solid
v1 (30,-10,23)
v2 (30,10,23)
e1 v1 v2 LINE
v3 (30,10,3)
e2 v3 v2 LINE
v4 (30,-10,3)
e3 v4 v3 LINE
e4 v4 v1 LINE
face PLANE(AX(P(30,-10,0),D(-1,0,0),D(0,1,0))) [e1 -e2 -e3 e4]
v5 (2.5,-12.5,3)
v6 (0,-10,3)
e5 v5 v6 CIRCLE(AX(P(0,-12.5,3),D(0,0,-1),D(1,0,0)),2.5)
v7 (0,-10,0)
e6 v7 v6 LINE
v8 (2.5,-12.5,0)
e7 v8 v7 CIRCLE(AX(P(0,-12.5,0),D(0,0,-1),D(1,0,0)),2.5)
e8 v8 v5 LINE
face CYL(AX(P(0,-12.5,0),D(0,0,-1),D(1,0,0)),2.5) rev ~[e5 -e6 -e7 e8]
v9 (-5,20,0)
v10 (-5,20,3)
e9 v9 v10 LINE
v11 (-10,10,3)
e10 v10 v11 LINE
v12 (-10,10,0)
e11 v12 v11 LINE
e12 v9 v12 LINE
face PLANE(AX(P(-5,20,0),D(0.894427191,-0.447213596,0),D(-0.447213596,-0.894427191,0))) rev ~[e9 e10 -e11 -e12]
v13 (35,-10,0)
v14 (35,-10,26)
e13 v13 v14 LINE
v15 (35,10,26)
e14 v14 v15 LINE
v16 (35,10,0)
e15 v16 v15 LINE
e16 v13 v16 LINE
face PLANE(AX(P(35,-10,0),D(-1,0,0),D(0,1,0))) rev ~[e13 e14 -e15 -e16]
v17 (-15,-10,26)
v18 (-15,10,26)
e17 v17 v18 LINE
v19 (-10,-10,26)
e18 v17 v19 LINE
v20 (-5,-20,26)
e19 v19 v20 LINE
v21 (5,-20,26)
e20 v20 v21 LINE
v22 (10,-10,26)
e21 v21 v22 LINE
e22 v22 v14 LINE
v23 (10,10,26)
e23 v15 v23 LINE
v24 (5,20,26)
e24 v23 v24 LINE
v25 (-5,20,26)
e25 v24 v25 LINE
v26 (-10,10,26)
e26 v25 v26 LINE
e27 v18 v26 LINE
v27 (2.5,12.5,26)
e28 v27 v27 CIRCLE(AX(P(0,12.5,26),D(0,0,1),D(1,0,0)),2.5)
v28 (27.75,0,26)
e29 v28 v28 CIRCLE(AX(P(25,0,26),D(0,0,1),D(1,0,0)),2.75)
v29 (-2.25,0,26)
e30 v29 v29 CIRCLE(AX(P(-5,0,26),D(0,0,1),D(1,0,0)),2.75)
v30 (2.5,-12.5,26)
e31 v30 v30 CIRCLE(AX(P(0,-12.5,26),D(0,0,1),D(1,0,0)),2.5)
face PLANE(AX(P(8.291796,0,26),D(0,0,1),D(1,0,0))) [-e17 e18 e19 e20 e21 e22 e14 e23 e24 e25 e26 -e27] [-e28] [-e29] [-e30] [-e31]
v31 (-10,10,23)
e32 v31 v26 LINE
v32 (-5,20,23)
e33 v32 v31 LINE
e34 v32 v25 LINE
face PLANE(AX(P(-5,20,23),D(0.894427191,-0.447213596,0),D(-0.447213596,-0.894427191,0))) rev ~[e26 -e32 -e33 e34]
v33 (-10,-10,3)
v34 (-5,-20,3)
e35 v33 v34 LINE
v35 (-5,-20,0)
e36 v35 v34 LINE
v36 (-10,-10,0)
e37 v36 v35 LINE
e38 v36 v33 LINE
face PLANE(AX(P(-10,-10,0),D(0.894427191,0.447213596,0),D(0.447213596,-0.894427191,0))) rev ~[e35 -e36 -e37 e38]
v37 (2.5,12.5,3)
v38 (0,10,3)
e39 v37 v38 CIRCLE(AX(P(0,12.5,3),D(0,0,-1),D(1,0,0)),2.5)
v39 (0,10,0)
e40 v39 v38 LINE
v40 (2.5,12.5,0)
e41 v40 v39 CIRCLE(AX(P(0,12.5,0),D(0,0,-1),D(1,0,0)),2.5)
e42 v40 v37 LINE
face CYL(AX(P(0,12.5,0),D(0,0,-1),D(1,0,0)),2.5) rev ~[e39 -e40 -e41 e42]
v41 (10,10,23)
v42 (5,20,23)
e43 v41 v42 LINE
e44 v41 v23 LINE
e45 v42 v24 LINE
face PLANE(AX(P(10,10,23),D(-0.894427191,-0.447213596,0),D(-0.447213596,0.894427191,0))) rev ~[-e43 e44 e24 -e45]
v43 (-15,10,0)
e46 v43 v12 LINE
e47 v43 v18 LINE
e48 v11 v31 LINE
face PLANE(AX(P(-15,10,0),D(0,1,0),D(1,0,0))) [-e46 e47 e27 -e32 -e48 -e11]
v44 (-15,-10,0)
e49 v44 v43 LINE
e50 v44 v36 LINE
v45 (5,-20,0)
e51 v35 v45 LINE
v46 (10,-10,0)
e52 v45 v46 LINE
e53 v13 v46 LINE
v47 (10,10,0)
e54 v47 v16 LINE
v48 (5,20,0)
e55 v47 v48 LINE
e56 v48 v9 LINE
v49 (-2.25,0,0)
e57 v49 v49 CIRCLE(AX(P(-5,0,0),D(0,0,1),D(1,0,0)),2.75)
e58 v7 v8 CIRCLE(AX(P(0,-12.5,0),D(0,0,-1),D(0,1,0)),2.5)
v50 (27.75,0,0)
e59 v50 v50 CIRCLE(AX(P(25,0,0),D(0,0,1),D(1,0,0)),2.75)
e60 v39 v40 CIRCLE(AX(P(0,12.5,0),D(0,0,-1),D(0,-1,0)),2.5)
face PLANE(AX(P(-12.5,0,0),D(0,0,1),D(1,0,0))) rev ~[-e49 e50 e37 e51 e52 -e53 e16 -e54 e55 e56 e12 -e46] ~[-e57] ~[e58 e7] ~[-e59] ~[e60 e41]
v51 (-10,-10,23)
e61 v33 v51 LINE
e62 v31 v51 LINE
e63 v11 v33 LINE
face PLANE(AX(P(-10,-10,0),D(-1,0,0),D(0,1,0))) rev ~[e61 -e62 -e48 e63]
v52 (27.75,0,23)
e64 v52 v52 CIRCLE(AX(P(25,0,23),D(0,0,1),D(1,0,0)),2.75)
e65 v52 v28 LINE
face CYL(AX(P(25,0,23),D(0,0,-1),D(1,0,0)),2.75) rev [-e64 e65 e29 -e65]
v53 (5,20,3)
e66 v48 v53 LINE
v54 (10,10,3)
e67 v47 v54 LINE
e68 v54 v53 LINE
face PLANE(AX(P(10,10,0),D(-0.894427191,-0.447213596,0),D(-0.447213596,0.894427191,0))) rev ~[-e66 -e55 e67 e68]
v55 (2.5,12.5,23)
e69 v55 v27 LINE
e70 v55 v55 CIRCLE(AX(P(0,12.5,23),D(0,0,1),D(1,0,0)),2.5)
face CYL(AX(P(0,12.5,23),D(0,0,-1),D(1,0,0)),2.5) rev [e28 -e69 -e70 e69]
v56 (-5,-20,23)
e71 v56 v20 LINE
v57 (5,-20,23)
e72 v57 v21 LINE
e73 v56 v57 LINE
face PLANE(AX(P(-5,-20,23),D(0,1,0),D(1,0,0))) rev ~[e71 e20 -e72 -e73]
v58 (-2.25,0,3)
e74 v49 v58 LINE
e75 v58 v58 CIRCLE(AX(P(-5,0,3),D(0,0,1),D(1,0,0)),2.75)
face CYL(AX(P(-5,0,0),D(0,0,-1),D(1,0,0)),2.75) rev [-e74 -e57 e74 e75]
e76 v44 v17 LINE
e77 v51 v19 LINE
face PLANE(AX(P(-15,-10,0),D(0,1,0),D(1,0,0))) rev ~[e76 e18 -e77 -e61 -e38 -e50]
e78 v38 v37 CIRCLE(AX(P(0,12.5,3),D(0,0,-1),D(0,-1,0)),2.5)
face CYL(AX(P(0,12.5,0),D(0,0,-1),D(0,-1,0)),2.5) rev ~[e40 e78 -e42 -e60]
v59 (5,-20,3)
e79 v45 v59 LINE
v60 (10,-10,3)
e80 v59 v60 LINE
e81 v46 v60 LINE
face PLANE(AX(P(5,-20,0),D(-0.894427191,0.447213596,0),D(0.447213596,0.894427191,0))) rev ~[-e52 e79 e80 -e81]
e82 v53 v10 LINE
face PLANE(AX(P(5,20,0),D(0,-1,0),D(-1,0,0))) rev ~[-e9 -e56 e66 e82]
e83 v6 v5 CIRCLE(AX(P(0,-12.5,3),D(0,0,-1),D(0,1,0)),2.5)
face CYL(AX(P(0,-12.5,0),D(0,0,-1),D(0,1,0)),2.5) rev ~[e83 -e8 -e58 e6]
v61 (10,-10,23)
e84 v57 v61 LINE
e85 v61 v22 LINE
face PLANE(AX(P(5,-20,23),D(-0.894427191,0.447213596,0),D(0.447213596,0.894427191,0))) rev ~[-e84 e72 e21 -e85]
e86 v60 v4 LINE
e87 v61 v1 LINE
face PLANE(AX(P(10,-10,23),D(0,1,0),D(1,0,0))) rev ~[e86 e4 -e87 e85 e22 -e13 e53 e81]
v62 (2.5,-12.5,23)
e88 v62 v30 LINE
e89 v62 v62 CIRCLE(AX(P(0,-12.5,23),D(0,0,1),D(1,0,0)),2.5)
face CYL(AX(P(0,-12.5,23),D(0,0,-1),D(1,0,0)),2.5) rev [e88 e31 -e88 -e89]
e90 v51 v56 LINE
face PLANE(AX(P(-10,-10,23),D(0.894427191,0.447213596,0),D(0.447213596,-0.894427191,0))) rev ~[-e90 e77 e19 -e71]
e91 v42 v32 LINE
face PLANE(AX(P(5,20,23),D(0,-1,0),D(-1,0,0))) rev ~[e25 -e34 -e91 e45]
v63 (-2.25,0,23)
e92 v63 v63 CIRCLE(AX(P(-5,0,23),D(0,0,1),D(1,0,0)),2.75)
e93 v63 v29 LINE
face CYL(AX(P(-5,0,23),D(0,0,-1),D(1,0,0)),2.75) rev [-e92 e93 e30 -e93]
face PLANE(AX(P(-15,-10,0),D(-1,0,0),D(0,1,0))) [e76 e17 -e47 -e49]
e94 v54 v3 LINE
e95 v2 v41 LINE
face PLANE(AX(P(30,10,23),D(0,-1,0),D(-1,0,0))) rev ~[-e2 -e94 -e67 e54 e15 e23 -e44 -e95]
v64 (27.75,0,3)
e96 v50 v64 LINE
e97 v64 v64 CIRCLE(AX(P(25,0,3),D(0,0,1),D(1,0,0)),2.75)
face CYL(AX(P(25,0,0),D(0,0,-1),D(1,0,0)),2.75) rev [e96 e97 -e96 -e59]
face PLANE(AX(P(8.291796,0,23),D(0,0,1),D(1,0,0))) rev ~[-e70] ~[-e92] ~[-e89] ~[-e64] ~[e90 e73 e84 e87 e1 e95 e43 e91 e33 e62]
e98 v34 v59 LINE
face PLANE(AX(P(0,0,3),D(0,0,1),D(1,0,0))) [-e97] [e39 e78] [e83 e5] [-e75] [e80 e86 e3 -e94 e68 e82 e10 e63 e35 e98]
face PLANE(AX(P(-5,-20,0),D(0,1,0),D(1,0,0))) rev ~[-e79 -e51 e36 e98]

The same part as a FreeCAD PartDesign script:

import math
import FreeCAD as App
import Part
import Sketcher
Q = App.Units.Quantity


def add_polygon(sketch, points):
    """Adds a closed chain of lines whose ends are joined by coincident constraints."""
    first, n = sketch.GeometryCount, len(points)
    for a, b in zip(points, points[1:] + points[:1]):
        sketch.addGeometry(Part.LineSegment(App.Vector(*a, 0), App.Vector(*b, 0)), False)
    for i in range(n):
        sketch.addConstraint(Sketcher.Constraint("Coincident", first + i, 2, first + (i + 1) % n, 1))

doc = App.newDocument("Part")
body = doc.addObject("PartDesign::Body", "Body")

# Sketch on XY plane
sketch1 = body.newObject("Sketcher::SketchObject", "Sketch")
sketch1.AttachmentSupport = (doc.getObject("XY_Plane"), [""])
sketch1.MapMode = "FlatFace"
add_polygon(sketch1, [(-10, 10), (-10, -10), (-5, -20), (5, -20), (10, -10), (30, -10), (30, 10), (10, 10), (5, 20), (-5, 20)])  # lines 0-9
sketch1.addGeometry(Part.ArcOfCircle(Part.Circle(App.Vector(0, -12.5, 0), App.Vector(0, 0, 1), 2.5), math.radians(0), math.radians(90)), False)  # 10
sketch1.addGeometry(Part.ArcOfCircle(Part.Circle(App.Vector(0, -12.5, 0), App.Vector(0, 0, 1), 2.5), math.radians(90), math.radians(360)), False)  # 11
sketch1.addGeometry(Part.Circle(App.Vector(-5, 0, 0), App.Vector(0, 0, 1), 2.8), False)  # 12
sketch1.addGeometry(Part.ArcOfCircle(Part.Circle(App.Vector(0, 12.5, 0), App.Vector(0, 0, 1), 2.5), math.radians(0), math.radians(270)), False)  # 13
sketch1.addGeometry(Part.ArcOfCircle(Part.Circle(App.Vector(0, 12.5, 0), App.Vector(0, 0, 1), 2.5), math.radians(-90), math.radians(0)), False)  # 14
sketch1.addGeometry(Part.Circle(App.Vector(25, 0, 0), App.Vector(0, 0, 1), 2.8), False)  # 15
sketch1.addConstraint(Sketcher.Constraint("Tangent", 10, 1, 11, 2))
sketch1.addConstraint(Sketcher.Constraint("Coincident", 11, 1, 10, 2))
sketch1.addConstraint(Sketcher.Constraint("Tangent", 13, 1, 14, 2))
sketch1.addConstraint(Sketcher.Constraint("Coincident", 14, 1, 13, 2))
sketch1.addConstraint(Sketcher.Constraint("Vertical", 0))
sketch1.addConstraint(Sketcher.Constraint("Horizontal", 2))
sketch1.addConstraint(Sketcher.Constraint("Horizontal", 4))
sketch1.addConstraint(Sketcher.Constraint("Vertical", 5))
sketch1.addConstraint(Sketcher.Constraint("Horizontal", 6))
sketch1.addConstraint(Sketcher.Constraint("Horizontal", 8))
sketch1.addConstraint(Sketcher.Constraint("Equal", 11, 13))
sketch1.addConstraint(Sketcher.Constraint("Equal", 12, 15))
sketch1.addConstraint(Sketcher.Constraint("Symmetric", 10, 3, 13, 3, -1, 1))
sketch1.addConstraint(Sketcher.Constraint("Symmetric", 0, 2, 6, 2, -1, 1))
sketch1.addConstraint(Sketcher.Constraint("Symmetric", 1, 2, 7, 2, -1, 1))
sketch1.addConstraint(Sketcher.Constraint("Symmetric", 3, 2, 9, 2, -1, 1))
sketch1.addConstraint(Sketcher.Constraint("Symmetric", 10, 1, 13, 1, -1))
sketch1.addConstraint(Sketcher.Constraint("PointOnObject", 12, 3, -1))
sketch1.addConstraint(Sketcher.Constraint("PointOnObject", 15, 3, -1))
sketch1.addConstraint(Sketcher.Constraint("PointOnObject", 11, 1, -2))
sketch1.addConstraint(Sketcher.Constraint("PointOnObject", 14, 1, -2))
sketch1.addConstraint(Sketcher.Constraint("Parallel", 3, 9))
sketch1.addConstraint(Sketcher.Constraint("Horizontal", 0, 2, 3, 2))
sketch1.addConstraint(Sketcher.Constraint("Horizontal", 11, 3, 10, 1))
sketch1.addConstraint(Sketcher.Constraint("Horizontal", 4, 2, 11, 1))
sketch1.addConstraint(Sketcher.Constraint("Vertical", 12, 3, 1, 2))
sketch1.addConstraint(Sketcher.Constraint("Vertical", 2, 2, 7, 2))
sketch1.addConstraint(Sketcher.Constraint("Equal", 6, 0))
sketch1.addConstraint(Sketcher.Constraint("Diameter", 12, Q("5.5 mm")))
sketch1.addConstraint(Sketcher.Constraint("Radius", 10, Q("2.5 mm")))
sketch1.addConstraint(Sketcher.Constraint("DistanceX", 2, 1, 2, 2, Q("10 mm")))
sketch1.addConstraint(Sketcher.Constraint("DistanceX", 4, 1, 4, 2, Q("20 mm")))
sketch1.addConstraint(Sketcher.Constraint("DistanceX", -1, 1, 15, 3, Q("25 mm")))
sketch1.addConstraint(Sketcher.Constraint("DistanceX", 0, 2, -1, 1, Q("10 mm")))
sketch1.addConstraint(Sketcher.Constraint("DistanceY", 1, 2, -1, 1, Q("20 mm")))
pad1 = body.newObject("PartDesign::Pad", "Pad")
pad1.Profile = sketch1
pad1.Length = 3

# Sketch on XY plane
sketch2 = body.newObject("Sketcher::SketchObject", "Sketch001")
sketch2.AttachmentSupport = (doc.getObject("XY_Plane"), [""])
sketch2.MapMode = "FlatFace"
add_polygon(sketch2, [(-15, 10), (-15, -10), (-10, -10), (-10, 10)])  # lines 0-3
add_polygon(sketch2, [(30, 10), (30, -10), (35, -10), (35, 10)])  # lines 4-7
sketch2.addConstraint(Sketcher.Constraint("Vertical", 0))
sketch2.addConstraint(Sketcher.Constraint("Horizontal", 1))
sketch2.addConstraint(Sketcher.Constraint("Vertical", 2))
sketch2.addConstraint(Sketcher.Constraint("Horizontal", 3))
sketch2.addConstraint(Sketcher.Constraint("Vertical", 4))
sketch2.addConstraint(Sketcher.Constraint("Horizontal", 5))
sketch2.addConstraint(Sketcher.Constraint("Vertical", 6))
sketch2.addConstraint(Sketcher.Constraint("Horizontal", 7))
sketch2.addConstraint(Sketcher.Constraint("Horizontal", 1, 2, 4, 2))
sketch2.addConstraint(Sketcher.Constraint("Horizontal", 3, 2, 6, 2))
sketch2.addConstraint(Sketcher.Constraint("Equal", 3, 5))
sketch2.addConstraint(Sketcher.Constraint("DistanceX", 1, 1, 1, 2, Q("5 mm")))
sketch2.addConstraint(Sketcher.Constraint("DistanceY", 0, 2, 0, 1, Q("20 mm")))
sketch2.addConstraint(Sketcher.Constraint("DistanceX", 0, 2, -1, 1, Q("15 mm")))
sketch2.addConstraint(Sketcher.Constraint("DistanceY", 0, 2, -1, 1, Q("10 mm")))
sketch2.addConstraint(Sketcher.Constraint("DistanceX", -1, 1, 4, 2, Q("30 mm")))
pad2 = body.newObject("PartDesign::Pad", "Pad001")
pad2.Profile = sketch2
pad2.Length = 26

# Sketch on XY plane
sketch3 = body.newObject("Sketcher::SketchObject", "Sketch002")
sketch3.AttachmentSupport = (doc.getObject("XY_Plane"), [""])
sketch3.MapMode = "FlatFace"
sketch3.AttachmentOffset = App.Placement(App.Vector(0, 0, 23), App.Rotation())
add_polygon(sketch3, [(-10, 10), (-10, -10), (-5, -20), (5, -20), (10, -10), (30, -10), (30, 10), (10, 10), (5, 20), (-5, 20)])  # lines 0-9
sketch3.addGeometry(Part.Circle(App.Vector(0, -12.5, 0), App.Vector(0, 0, 1), 2.5), False)  # 10
sketch3.addGeometry(Part.Circle(App.Vector(-5, 0, 0), App.Vector(0, 0, 1), 2.8), False)  # 11
sketch3.addGeometry(Part.Circle(App.Vector(0, 12.5, 0), App.Vector(0, 0, 1), 2.5), False)  # 12
sketch3.addGeometry(Part.Circle(App.Vector(25, 0, 0), App.Vector(0, 0, 1), 2.8), False)  # 13
sketch3.addConstraint(Sketcher.Constraint("Vertical", 0))
sketch3.addConstraint(Sketcher.Constraint("Horizontal", 2))
sketch3.addConstraint(Sketcher.Constraint("Horizontal", 4))
sketch3.addConstraint(Sketcher.Constraint("Vertical", 5))
sketch3.addConstraint(Sketcher.Constraint("Horizontal", 6))
sketch3.addConstraint(Sketcher.Constraint("Horizontal", 8))
sketch3.addConstraint(Sketcher.Constraint("Equal", 10, 12))
sketch3.addConstraint(Sketcher.Constraint("Equal", 11, 13))
sketch3.addConstraint(Sketcher.Constraint("Symmetric", 10, 3, 12, 3, -1, 1))
sketch3.addConstraint(Sketcher.Constraint("Symmetric", 0, 2, 6, 2, -1, 1))
sketch3.addConstraint(Sketcher.Constraint("Symmetric", 1, 2, 7, 2, -1, 1))
sketch3.addConstraint(Sketcher.Constraint("Symmetric", 3, 2, 9, 2, -1, 1))
sketch3.addConstraint(Sketcher.Constraint("PointOnObject", 10, 3, -2))
sketch3.addConstraint(Sketcher.Constraint("PointOnObject", 11, 3, -1))
sketch3.addConstraint(Sketcher.Constraint("PointOnObject", 13, 3, -1))
sketch3.addConstraint(Sketcher.Constraint("Parallel", 3, 9))
sketch3.addConstraint(Sketcher.Constraint("Horizontal", 0, 2, 3, 2))
sketch3.addConstraint(Sketcher.Constraint("Vertical", 11, 3, 1, 2))
sketch3.addConstraint(Sketcher.Constraint("Vertical", 2, 2, 7, 2))
sketch3.addConstraint(Sketcher.Constraint("Equal", 6, 0))
sketch3.addConstraint(Sketcher.Constraint("Diameter", 10, Q("5 mm")))
sketch3.addConstraint(Sketcher.Constraint("Diameter", 11, Q("5.5 mm")))
sketch3.addConstraint(Sketcher.Constraint("DistanceX", 2, 1, 2, 2, Q("10 mm")))
sketch3.addConstraint(Sketcher.Constraint("DistanceX", 4, 1, 4, 2, Q("20 mm")))
sketch3.addConstraint(Sketcher.Constraint("DistanceX", -1, 1, 13, 3, Q("25 mm")))
sketch3.addConstraint(Sketcher.Constraint("DistanceX", 0, 2, -1, 1, Q("10 mm")))
sketch3.addConstraint(Sketcher.Constraint("DistanceY", 1, 2, -1, 1, Q("20 mm")))
sketch3.addConstraint(Sketcher.Constraint("DistanceY", 10, 3, 12, 3, Q("25 mm")))
pad3 = body.newObject("PartDesign::Pad", "Pad002")
pad3.Profile = sketch3
pad3.Length = 3

doc.recompute()
